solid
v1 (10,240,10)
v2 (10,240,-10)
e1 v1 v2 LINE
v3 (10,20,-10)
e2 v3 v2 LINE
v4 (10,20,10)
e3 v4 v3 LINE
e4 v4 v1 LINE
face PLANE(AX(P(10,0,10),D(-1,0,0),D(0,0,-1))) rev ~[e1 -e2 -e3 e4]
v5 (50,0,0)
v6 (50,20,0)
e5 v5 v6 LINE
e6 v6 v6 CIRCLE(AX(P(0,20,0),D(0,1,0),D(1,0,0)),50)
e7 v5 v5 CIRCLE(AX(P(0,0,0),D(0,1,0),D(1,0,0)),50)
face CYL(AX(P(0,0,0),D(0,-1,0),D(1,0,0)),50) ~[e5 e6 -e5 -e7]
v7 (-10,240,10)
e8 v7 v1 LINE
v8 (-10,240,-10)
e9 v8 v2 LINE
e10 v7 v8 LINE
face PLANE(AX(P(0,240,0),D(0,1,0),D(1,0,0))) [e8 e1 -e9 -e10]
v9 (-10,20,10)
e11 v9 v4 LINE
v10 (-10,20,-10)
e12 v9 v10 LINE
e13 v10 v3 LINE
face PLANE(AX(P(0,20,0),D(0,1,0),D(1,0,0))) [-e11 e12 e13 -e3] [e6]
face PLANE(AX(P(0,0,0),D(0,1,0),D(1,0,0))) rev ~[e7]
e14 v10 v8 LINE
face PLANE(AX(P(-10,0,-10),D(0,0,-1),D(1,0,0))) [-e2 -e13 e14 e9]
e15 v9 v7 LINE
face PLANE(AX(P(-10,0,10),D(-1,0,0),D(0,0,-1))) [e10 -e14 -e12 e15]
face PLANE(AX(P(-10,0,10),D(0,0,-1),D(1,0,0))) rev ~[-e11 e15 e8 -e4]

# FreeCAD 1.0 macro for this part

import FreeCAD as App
import Part
import Sketcher
from FreeCAD import Vector


def add_polygon(sketch, points):
    """Adds a closed chain of lines whose ends are joined by coincident constraints."""
    first, n = sketch.GeometryCount, len(points)
    for a, b in zip(points, points[1:] + points[:1]):
        sketch.addGeometry(Part.LineSegment(App.Vector(*a, 0), App.Vector(*b, 0)), False)
    for i in range(n):
        sketch.addConstraint(Sketcher.Constraint("Coincident", first + i, 2, first + (i + 1) % n, 1))

doc = App.newDocument("Part")
body = doc.addObject("PartDesign::Body", "Body")

# Sketch on XZ plane
sketch1 = body.newObject("Sketcher::SketchObject", "Sketch")
sketch1.AttachmentSupport = (doc.getObject("XZ_Plane"), [""])
sketch1.MapMode = "FlatFace"
sketch1.addGeometry(Part.Circle(Vector(0, 0, 0), Vector(0, 0, 1), 50), False)  # 0
add_polygon(sketch1, [(10, 10), (-10, 10), (-10, -10), (10, -10)])  # lines 1-4
sketch1.addConstraint([
    Sketcher.Constraint("Horizontal", 1),
    Sketcher.Constraint("Vertical", 2),
    Sketcher.Constraint("Horizontal", 3),
    Sketcher.Constraint("Vertical", 4),
    Sketcher.Constraint("Coincident", 0, 3, -1, 1),
    Sketcher.Constraint("Symmetric", 1, 2, 3, 2, -1, 1),
    Sketcher.Constraint("Equal", 3, 2),
    Sketcher.Constraint("Diameter", 0, 100.0),
    Sketcher.Constraint("DistanceX", 1, 2, 1, 1, 20.0),
])
pad1 = body.newObject("PartDesign::Pad", "Pad")
pad1.Profile = sketch1
pad1.Length = 20
pad1.Reversed = True

# Sketch on XZ plane
sketch2 = body.newObject("Sketcher::SketchObject", "Sketch001")
sketch2.AttachmentSupport = (doc.getObject("XZ_Plane"), [""])
sketch2.MapMode = "FlatFace"
add_polygon(sketch2, [(-10, -10), (-10, 10), (10, 10), (10, -10)])  # lines 0-3
sketch2.addConstraint([
    Sketcher.Constraint("Vertical", 0),
    Sketcher.Constraint("Horizontal", 1),
    Sketcher.Constraint("Vertical", 2),
    Sketcher.Constraint("Horizontal", 3),
    Sketcher.Constraint("Symmetric", 0, 2, 2, 2, -1, 1),
    Sketcher.Constraint("Equal", 3, 0),
    Sketcher.Constraint("DistanceX", 1, 1, 1, 2, 20.0),
])
pad2 = body.newObject("PartDesign::Pad", "Pad001")
pad2.Profile = sketch2
pad2.Length = 240
pad2.Reversed = True

doc.recompute()
